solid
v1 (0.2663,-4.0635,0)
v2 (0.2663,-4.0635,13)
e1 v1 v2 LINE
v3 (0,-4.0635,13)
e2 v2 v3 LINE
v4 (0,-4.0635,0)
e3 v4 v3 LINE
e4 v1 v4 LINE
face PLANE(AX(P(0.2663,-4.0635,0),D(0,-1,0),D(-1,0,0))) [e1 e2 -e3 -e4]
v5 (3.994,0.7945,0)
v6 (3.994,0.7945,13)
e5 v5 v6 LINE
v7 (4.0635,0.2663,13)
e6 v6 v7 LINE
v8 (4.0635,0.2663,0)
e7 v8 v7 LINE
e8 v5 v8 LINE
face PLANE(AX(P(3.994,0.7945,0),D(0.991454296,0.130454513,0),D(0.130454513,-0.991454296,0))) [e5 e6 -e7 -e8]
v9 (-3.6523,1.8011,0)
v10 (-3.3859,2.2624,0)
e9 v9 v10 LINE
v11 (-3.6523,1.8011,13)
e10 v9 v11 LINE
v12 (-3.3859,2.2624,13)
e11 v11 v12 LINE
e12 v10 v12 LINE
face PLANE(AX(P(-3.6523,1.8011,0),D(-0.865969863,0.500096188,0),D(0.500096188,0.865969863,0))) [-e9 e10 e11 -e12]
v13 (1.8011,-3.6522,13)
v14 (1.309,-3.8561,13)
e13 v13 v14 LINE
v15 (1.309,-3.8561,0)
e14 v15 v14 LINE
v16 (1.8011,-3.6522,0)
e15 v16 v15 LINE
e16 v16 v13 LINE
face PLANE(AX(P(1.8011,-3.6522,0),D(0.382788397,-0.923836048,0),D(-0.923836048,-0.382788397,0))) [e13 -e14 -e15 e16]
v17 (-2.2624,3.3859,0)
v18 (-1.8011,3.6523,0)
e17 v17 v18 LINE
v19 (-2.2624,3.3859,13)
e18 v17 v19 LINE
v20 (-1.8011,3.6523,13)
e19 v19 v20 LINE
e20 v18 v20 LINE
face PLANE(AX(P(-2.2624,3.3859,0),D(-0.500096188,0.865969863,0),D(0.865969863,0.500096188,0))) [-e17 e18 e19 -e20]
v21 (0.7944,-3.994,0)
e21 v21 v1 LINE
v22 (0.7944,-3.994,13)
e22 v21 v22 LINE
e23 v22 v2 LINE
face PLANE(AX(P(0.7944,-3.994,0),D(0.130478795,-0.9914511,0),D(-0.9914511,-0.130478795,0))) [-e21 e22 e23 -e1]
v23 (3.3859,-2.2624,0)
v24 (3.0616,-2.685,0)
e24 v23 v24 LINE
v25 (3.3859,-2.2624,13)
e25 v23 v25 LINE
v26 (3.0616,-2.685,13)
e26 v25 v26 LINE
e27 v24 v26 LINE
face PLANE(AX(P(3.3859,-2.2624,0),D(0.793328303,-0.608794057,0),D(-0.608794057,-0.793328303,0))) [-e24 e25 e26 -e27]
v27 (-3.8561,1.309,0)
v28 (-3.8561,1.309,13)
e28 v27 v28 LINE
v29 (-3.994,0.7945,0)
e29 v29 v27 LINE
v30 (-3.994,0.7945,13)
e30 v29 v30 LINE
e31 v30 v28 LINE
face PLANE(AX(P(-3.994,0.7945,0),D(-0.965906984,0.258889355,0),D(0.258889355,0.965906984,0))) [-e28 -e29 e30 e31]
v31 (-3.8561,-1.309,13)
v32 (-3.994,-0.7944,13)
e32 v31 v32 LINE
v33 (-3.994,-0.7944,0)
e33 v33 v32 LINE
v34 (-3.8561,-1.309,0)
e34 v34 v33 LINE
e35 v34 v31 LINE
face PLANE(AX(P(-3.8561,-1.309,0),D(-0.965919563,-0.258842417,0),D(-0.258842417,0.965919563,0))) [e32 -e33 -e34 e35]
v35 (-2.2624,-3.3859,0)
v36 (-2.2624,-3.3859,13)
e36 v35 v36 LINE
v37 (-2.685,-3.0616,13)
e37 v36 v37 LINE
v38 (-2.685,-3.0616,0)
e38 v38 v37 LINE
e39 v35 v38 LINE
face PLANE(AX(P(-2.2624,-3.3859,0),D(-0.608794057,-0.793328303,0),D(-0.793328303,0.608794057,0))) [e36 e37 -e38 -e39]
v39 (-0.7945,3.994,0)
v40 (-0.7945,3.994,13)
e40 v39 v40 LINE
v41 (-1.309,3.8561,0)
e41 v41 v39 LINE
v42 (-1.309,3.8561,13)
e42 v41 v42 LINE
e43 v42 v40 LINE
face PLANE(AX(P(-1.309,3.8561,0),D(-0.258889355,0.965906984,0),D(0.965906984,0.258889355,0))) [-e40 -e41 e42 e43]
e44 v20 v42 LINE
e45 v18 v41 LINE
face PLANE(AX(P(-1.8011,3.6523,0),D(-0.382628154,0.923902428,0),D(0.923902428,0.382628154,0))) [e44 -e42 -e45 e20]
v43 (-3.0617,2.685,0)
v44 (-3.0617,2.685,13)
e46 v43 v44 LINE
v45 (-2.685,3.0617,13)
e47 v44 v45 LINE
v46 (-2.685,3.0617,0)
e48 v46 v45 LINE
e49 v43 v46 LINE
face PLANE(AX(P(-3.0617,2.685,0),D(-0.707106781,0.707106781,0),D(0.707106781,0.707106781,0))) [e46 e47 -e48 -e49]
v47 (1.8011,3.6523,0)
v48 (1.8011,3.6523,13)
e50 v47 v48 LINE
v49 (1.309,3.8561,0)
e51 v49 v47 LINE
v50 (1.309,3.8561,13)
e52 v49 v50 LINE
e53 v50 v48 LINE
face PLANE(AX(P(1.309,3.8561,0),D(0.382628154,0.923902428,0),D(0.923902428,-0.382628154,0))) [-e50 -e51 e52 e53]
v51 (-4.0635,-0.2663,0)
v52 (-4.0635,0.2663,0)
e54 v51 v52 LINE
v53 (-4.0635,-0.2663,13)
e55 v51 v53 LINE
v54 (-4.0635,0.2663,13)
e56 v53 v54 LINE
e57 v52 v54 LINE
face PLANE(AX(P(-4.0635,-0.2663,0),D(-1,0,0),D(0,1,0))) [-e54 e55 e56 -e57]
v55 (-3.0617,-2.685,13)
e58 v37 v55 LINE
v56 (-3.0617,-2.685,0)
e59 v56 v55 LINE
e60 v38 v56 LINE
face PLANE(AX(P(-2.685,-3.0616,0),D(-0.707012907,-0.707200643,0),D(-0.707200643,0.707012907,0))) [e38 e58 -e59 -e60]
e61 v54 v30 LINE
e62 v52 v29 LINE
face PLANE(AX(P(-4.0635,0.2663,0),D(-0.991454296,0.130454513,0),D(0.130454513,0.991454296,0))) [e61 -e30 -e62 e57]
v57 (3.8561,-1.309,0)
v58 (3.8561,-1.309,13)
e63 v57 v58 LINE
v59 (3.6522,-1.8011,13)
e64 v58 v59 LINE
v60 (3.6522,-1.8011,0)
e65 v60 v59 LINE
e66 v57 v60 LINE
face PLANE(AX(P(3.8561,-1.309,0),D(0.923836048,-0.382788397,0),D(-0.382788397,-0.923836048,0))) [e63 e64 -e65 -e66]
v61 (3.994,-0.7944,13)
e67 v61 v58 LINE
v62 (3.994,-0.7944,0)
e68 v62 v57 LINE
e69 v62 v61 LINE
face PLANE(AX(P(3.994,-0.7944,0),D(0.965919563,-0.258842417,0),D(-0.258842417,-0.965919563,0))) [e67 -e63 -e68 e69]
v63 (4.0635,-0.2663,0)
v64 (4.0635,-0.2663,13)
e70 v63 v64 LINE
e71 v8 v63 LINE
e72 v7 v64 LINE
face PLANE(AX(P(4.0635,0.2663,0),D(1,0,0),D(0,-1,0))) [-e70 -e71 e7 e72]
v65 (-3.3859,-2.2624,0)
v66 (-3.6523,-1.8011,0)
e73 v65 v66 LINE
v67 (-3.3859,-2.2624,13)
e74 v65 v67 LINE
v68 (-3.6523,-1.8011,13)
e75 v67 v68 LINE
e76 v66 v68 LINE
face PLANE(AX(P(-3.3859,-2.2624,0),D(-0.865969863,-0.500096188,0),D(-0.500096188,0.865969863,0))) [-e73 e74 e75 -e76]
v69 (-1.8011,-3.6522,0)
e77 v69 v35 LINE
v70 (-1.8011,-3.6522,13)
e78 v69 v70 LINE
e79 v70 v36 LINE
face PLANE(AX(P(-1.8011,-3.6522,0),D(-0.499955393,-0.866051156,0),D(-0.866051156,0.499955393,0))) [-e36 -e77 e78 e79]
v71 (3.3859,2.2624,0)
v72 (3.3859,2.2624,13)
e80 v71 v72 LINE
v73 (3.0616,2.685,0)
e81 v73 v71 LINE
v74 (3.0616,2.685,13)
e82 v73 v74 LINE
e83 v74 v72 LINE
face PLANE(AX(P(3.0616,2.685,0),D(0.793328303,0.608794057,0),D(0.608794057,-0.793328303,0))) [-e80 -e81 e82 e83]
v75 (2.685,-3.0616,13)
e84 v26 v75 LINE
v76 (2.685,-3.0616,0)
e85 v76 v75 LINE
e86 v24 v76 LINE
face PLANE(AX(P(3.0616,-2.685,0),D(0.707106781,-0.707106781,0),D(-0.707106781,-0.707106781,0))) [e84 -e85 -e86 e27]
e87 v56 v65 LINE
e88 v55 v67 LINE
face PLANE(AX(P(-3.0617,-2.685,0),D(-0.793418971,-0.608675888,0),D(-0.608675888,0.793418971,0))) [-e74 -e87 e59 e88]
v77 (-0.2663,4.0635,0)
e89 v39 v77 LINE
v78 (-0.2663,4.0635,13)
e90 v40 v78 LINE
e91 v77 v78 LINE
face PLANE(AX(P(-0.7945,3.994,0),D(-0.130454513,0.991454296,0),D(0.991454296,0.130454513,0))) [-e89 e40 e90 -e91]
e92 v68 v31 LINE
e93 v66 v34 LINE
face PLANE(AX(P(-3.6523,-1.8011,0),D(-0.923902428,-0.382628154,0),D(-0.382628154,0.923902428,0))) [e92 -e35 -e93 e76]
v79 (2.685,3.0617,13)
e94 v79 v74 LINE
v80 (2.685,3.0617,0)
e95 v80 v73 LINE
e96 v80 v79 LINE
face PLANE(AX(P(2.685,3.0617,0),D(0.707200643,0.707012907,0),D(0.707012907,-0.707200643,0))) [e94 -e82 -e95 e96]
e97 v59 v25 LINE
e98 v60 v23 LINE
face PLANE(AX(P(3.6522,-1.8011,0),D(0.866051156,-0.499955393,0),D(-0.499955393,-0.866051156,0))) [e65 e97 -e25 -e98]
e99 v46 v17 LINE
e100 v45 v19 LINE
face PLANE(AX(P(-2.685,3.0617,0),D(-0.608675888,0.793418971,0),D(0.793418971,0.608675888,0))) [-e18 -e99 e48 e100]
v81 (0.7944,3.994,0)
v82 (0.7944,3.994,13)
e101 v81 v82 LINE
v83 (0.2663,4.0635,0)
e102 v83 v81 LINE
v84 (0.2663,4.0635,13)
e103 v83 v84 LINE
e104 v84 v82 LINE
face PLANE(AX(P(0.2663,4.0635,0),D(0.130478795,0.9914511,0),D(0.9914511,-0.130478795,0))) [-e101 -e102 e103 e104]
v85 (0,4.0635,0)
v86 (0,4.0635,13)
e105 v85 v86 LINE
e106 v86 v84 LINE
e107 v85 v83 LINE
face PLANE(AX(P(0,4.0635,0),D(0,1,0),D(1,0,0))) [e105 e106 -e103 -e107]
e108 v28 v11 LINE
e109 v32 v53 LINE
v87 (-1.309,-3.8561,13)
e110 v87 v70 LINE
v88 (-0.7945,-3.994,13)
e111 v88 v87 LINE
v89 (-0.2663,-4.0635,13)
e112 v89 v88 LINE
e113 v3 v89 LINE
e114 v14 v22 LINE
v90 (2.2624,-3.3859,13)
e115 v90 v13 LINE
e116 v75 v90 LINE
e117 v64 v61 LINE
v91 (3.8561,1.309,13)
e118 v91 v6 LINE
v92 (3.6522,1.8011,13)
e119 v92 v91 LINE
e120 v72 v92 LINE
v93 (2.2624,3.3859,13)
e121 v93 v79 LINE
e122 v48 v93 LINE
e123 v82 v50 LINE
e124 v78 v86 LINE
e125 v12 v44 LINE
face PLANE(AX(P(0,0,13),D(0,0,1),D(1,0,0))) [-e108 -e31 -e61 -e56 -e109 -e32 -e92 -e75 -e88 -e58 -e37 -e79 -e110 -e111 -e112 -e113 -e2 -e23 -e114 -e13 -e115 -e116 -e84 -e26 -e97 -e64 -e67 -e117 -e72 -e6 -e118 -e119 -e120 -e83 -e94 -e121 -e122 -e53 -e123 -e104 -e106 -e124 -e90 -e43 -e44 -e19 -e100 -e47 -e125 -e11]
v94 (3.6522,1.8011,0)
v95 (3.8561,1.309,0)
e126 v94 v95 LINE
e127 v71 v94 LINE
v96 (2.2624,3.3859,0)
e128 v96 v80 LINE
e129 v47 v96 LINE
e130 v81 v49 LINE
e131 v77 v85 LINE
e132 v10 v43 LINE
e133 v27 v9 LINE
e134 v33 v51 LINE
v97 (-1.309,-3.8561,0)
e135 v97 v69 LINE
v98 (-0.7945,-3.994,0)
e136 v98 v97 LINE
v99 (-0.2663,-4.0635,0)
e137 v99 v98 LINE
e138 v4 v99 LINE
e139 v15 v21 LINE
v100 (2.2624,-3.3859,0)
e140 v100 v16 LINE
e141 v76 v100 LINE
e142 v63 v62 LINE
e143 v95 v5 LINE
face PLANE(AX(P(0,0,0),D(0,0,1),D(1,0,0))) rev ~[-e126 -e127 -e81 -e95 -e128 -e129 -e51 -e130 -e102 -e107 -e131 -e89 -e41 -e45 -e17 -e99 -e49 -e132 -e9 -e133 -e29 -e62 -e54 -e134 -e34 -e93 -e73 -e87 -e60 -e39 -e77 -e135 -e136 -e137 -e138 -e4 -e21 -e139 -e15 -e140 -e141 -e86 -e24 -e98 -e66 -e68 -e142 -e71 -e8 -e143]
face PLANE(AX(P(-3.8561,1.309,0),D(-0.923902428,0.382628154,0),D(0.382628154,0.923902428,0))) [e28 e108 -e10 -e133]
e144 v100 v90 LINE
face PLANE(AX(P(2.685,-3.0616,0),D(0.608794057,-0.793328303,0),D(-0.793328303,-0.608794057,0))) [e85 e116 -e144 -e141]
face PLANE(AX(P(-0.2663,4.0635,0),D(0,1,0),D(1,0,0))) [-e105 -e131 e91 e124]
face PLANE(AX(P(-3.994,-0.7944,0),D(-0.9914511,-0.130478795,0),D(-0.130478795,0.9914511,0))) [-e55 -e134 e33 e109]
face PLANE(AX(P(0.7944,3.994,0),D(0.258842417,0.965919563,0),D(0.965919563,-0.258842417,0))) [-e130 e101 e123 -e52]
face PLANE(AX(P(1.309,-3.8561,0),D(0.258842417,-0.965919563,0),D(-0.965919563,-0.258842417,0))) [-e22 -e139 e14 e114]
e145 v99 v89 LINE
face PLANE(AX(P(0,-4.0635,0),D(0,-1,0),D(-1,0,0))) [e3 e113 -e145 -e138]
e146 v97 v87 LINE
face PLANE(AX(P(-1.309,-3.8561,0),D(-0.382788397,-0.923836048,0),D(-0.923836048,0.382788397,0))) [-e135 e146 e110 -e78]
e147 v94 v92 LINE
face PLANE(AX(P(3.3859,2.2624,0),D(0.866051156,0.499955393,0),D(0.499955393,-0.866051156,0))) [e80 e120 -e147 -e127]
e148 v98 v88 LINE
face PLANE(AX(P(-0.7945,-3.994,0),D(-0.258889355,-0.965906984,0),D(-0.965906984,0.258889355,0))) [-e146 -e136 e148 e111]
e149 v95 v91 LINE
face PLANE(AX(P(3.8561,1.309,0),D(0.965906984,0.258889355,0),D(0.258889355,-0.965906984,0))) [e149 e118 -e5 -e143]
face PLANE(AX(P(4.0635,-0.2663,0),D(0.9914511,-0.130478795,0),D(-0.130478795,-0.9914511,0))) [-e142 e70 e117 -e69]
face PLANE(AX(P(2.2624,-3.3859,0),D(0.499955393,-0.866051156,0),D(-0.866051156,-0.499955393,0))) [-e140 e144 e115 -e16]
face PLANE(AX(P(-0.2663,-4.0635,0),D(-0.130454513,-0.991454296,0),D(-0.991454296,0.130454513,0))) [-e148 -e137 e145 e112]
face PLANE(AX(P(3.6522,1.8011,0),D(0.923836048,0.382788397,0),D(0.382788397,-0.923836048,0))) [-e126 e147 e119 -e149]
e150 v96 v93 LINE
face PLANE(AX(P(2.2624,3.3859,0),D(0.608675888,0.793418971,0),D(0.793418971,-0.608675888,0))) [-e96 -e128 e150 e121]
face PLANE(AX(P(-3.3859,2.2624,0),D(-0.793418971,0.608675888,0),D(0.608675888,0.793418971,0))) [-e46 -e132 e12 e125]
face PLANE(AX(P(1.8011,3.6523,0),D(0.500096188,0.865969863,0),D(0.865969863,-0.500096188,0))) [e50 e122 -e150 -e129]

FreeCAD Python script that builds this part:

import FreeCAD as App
import Part
import Sketcher


def add_polygon(sketch, points):
    """Adds a closed chain of lines whose ends are joined by coincident constraints."""
    first, n = sketch.GeometryCount, len(points)
    for a, b in zip(points, points[1:] + points[:1]):
        sketch.addGeometry(Part.LineSegment(App.Vector(*a, 0), App.Vector(*b, 0)), False)
    for i in range(n):
        sketch.addConstraint(Sketcher.Constraint("Coincident", first + i, 2, first + (i + 1) % n, 1))

doc = App.newDocument("Part")
body = doc.addObject("PartDesign::Body", "Body")

sketch1 = body.newObject("Sketcher::SketchObject", "Sketch")
sketch1.AttachmentSupport = (doc.getObject("XY_Plane"), [""])
sketch1.MapMode = "FlatFace"
add_polygon(sketch1, [(-3.8561, 1.309), (-3.994, 0.7945), (-4.0635, 0.2663), (-4.0635, -0.2663), (-3.994, -0.7944), (-3.8561, -1.309), (-3.6523, -1.8011), (-3.3859, -2.2624), (-3.0617, -2.685), (-2.685, -3.0616), (-2.2624, -3.3859), (-1.8011, -3.6522), (-1.309, -3.8561), (-0.7945, -3.994), (-0.2663, -4.0635), (0.2663, -4.0635), (0.7944, -3.994), (1.309, -3.8561), (1.8011, -3.6522), (2.2624, -3.3859), (2.685, -3.0616), (3.0616, -2.685), (3.3859, -2.2624), (3.6522, -1.8011), (3.8561, -1.309), (3.994, -0.7944), (4.0635, -0.2663), (4.0635, 0.2663), (3.994, 0.7945), (3.8561, 1.309), (3.6522, 1.8011), (3.3859, 2.2624), (3.0616, 2.685), (2.685, 3.0617), (2.2624, 3.3859), (1.8011, 3.6523), (1.309, 3.8561), (0.7944, 3.994), (0.2663, 4.0635), (-0.2663, 4.0635), (-0.7945, 3.994), (-1.309, 3.8561), (-1.8011, 3.6523), (-2.2624, 3.3859), (-2.685, 3.0617), (-3.0617, 2.685), (-3.3859, 2.2624), (-3.6523, 1.8011)])
sketch1.addConstraint([
    Sketcher.Constraint("Vertical", 2),
    Sketcher.Constraint("Horizontal", 14),
    Sketcher.Constraint("Vertical", 26),
    Sketcher.Constraint("Horizontal", 38),
    Sketcher.Constraint("DistanceX", 5, 2, 9, 2, 1.39),
    Sketcher.Constraint("DistanceY", 30, 2, 34, 2, 1.39),
    Sketcher.Constraint("DistanceY", 45, 2, 41, 2, 1.39),
    Sketcher.Constraint("DistanceX", 14, 1, 14, 2, 0.5326),
    Sketcher.Constraint("DistanceX", 38, 2, 38, 1, 0.5326),
    Sketcher.Constraint("DistanceY", 2, 2, 2, 1, 0.5326),
    Sketcher.Constraint("DistanceY", 26, 1, 26, 2, 0.5326),
    Sketcher.Constraint("DistanceX", 0, 2, -1, 1, 3.994),
    Sketcher.Constraint("DistanceX", 3, 2, -1, 1, 3.994),
    Sketcher.Constraint("DistanceX", 4, 2, -1, 1, 3.856),
    Sketcher.Constraint("DistanceY", 4, 2, -1, 1, 1.309),
    Sketcher.Constraint("DistanceY", 5, 2, -1, 1, 1.801),
    Sketcher.Constraint("DistanceX", 6, 2, -1, 1, 3.386),
    Sketcher.Constraint("DistanceY", 7, 2, -1, 1, 2.685),
    Sketcher.Constraint("DistanceX", 8, 2, -1, 1, 2.685),
    Sketcher.Constraint("DistanceY", 9, 2, -1, 1, 3.386),
    Sketcher.Constraint("DistanceX", 10, 2, -1, 1, 1.801),
    Sketcher.Constraint("DistanceX", 11, 2, -1, 1, 1.309),
    Sketcher.Constraint("DistanceY", 11, 2, -1, 1, 3.856),
    Sketcher.Constraint("DistanceY", 12, 2, -1, 1, 3.994),
    Sketcher.Constraint("DistanceY", 15, 2, -1, 1, 3.994),
    Sketcher.Constraint("DistanceX", -1, 1, 16, 2, 1.309),
    Sketcher.Constraint("DistanceY", 16, 2, -1, 1, 3.856),
    Sketcher.Constraint("DistanceX", -1, 1, 17, 2, 1.801),
    Sketcher.Constraint("DistanceY", 18, 2, -1, 1, 3.386),
    Sketcher.Constraint("DistanceX", -1, 1, 19, 2, 2.685),
    Sketcher.Constraint("DistanceY", 20, 2, -1, 1, 2.685),
    Sketcher.Constraint("DistanceX", -1, 1, 21, 2, 3.386),
    Sketcher.Constraint("DistanceY", 22, 2, -1, 1, 1.801),
    Sketcher.Constraint("DistanceX", -1, 1, 23, 2, 3.856),
    Sketcher.Constraint("DistanceY", 23, 2, -1, 1, 1.309),
    Sketcher.Constraint("DistanceX", -1, 1, 24, 2, 3.994),
    Sketcher.Constraint("DistanceX", -1, 1, 27, 2, 3.994),
    Sketcher.Constraint("DistanceX", -1, 1, 28, 2, 3.856),
    Sketcher.Constraint("DistanceY", -1, 1, 28, 2, 1.309),
    Sketcher.Constraint("DistanceY", -1, 1, 29, 2, 1.801),
    Sketcher.Constraint("DistanceX", -1, 1, 30, 2, 3.386),
    Sketcher.Constraint("DistanceY", -1, 1, 31, 2, 2.685),
    Sketcher.Constraint("DistanceX", -1, 1, 32, 2, 2.685),
    Sketcher.Constraint("DistanceY", -1, 1, 33, 2, 3.386),
    Sketcher.Constraint("DistanceX", -1, 1, 34, 2, 1.801),
    Sketcher.Constraint("DistanceX", -1, 1, 35, 2, 1.309),
    Sketcher.Constraint("DistanceY", -1, 1, 35, 2, 3.856),
    Sketcher.Constraint("DistanceY", -1, 1, 36, 2, 3.994),
    Sketcher.Constraint("DistanceY", -1, 1, 39, 2, 3.994),
    Sketcher.Constraint("DistanceX", 40, 2, -1, 1, 1.309),
    Sketcher.Constraint("DistanceY", -1, 1, 40, 2, 3.856),
    Sketcher.Constraint("DistanceX", 41, 2, -1, 1, 1.801),
    Sketcher.Constraint("DistanceY", -1, 1, 42, 2, 3.386),
    Sketcher.Constraint("DistanceX", 43, 2, -1, 1, 2.685),
    Sketcher.Constraint("DistanceY", -1, 1, 44, 2, 2.685),
    Sketcher.Constraint("DistanceX", 45, 2, -1, 1, 3.386),
    Sketcher.Constraint("DistanceY", -1, 1, 46, 2, 1.801),
    Sketcher.Constraint("DistanceX", 47, 2, -1, 1, 3.856),
    Sketcher.Constraint("DistanceY", -1, 1, 47, 2, 1.309),
    Sketcher.Constraint("DistanceY", 3, 2, 2, 2, 0.528),
    Sketcher.Constraint("DistanceY", 3, 2, 0, 2, 1.589),
    Sketcher.Constraint("DistanceY", 6, 2, 3, 2, 1.468),
    Sketcher.Constraint("DistanceY", 10, 2, 5, 2, 1.851),
    Sketcher.Constraint("DistanceX", 9, 2, 12, 2, 1.468),
    Sketcher.Constraint("DistanceX", 9, 2, 13, 2, 1.996),
    Sketcher.Constraint("DistanceY", 13, 2, 8, 2, 1.002),
    Sketcher.Constraint("DistanceX", 14, 2, 15, 2, 0.528),
    Sketcher.Constraint("DistanceY", 16, 2, 17, 2, 0.204),
    Sketcher.Constraint("DistanceX", 15, 2, 18, 2, 1.468),
    Sketcher.Constraint("DistanceY", 14, 2, 19, 2, 1.002),
    Sketcher.Constraint("DistanceX", 17, 2, 22, 2, 1.851),
    Sketcher.Constraint("DistanceY", 21, 2, 24, 2, 1.468),
    Sketcher.Constraint("DistanceY", 24, 2, 25, 2, 0.528),
    Sketcher.Constraint("DistanceX", 20, 2, 25, 2, 1.002),
    Sketcher.Constraint("DistanceY", 24, 2, 27, 2, 1.589),
    Sketcher.Constraint("DistanceX", 29, 2, 28, 2, 0.204),
    Sketcher.Constraint("DistanceY", 27, 2, 30, 2, 1.468),
    Sketcher.Constraint("DistanceX", 31, 2, 26, 2, 1.002),
    Sketcher.Constraint("DistanceX", 36, 2, 33, 2, 1.468),
    Sketcher.Constraint("DistanceX", 37, 2, 36, 2, 0.528),
    Sketcher.Constraint("DistanceX", 39, 2, 36, 2, 1.589),
    Sketcher.Constraint("DistanceX", 42, 2, 39, 2, 1.468),
    Sketcher.Constraint("DistanceY", 0, 2, 45, 2, 1.468),
    Sketcher.Constraint("Distance", 0, 0.5327),
    Sketcher.Constraint("Distance", 1, 0.5328),
    Sketcher.Constraint("Distance", 5, 0.5326),
    Sketcher.Constraint("Distance", 7, 0.5326),
    Sketcher.Constraint("Distance", 8, 0.5327),
    Sketcher.Constraint("Distance", 20, 0.5326),
    Sketcher.Constraint("Distance", 21, 0.5327),
    Sketcher.Constraint("Distance", 32, 0.5327),
    Sketcher.Constraint("Distance", 33, 0.5326),
    Sketcher.Constraint("Distance", 37, 0.5327),
    Sketcher.Constraint("Distance", 43, 0.5326),
    Sketcher.Constraint("Distance", 44, 0.5327),
    Sketcher.Constraint("Distance", 46, 0.5327),
])
pad1 = body.newObject("PartDesign::Pad", "Pad")
pad1.Profile = sketch1
pad1.Length = 13

doc.recompute()
